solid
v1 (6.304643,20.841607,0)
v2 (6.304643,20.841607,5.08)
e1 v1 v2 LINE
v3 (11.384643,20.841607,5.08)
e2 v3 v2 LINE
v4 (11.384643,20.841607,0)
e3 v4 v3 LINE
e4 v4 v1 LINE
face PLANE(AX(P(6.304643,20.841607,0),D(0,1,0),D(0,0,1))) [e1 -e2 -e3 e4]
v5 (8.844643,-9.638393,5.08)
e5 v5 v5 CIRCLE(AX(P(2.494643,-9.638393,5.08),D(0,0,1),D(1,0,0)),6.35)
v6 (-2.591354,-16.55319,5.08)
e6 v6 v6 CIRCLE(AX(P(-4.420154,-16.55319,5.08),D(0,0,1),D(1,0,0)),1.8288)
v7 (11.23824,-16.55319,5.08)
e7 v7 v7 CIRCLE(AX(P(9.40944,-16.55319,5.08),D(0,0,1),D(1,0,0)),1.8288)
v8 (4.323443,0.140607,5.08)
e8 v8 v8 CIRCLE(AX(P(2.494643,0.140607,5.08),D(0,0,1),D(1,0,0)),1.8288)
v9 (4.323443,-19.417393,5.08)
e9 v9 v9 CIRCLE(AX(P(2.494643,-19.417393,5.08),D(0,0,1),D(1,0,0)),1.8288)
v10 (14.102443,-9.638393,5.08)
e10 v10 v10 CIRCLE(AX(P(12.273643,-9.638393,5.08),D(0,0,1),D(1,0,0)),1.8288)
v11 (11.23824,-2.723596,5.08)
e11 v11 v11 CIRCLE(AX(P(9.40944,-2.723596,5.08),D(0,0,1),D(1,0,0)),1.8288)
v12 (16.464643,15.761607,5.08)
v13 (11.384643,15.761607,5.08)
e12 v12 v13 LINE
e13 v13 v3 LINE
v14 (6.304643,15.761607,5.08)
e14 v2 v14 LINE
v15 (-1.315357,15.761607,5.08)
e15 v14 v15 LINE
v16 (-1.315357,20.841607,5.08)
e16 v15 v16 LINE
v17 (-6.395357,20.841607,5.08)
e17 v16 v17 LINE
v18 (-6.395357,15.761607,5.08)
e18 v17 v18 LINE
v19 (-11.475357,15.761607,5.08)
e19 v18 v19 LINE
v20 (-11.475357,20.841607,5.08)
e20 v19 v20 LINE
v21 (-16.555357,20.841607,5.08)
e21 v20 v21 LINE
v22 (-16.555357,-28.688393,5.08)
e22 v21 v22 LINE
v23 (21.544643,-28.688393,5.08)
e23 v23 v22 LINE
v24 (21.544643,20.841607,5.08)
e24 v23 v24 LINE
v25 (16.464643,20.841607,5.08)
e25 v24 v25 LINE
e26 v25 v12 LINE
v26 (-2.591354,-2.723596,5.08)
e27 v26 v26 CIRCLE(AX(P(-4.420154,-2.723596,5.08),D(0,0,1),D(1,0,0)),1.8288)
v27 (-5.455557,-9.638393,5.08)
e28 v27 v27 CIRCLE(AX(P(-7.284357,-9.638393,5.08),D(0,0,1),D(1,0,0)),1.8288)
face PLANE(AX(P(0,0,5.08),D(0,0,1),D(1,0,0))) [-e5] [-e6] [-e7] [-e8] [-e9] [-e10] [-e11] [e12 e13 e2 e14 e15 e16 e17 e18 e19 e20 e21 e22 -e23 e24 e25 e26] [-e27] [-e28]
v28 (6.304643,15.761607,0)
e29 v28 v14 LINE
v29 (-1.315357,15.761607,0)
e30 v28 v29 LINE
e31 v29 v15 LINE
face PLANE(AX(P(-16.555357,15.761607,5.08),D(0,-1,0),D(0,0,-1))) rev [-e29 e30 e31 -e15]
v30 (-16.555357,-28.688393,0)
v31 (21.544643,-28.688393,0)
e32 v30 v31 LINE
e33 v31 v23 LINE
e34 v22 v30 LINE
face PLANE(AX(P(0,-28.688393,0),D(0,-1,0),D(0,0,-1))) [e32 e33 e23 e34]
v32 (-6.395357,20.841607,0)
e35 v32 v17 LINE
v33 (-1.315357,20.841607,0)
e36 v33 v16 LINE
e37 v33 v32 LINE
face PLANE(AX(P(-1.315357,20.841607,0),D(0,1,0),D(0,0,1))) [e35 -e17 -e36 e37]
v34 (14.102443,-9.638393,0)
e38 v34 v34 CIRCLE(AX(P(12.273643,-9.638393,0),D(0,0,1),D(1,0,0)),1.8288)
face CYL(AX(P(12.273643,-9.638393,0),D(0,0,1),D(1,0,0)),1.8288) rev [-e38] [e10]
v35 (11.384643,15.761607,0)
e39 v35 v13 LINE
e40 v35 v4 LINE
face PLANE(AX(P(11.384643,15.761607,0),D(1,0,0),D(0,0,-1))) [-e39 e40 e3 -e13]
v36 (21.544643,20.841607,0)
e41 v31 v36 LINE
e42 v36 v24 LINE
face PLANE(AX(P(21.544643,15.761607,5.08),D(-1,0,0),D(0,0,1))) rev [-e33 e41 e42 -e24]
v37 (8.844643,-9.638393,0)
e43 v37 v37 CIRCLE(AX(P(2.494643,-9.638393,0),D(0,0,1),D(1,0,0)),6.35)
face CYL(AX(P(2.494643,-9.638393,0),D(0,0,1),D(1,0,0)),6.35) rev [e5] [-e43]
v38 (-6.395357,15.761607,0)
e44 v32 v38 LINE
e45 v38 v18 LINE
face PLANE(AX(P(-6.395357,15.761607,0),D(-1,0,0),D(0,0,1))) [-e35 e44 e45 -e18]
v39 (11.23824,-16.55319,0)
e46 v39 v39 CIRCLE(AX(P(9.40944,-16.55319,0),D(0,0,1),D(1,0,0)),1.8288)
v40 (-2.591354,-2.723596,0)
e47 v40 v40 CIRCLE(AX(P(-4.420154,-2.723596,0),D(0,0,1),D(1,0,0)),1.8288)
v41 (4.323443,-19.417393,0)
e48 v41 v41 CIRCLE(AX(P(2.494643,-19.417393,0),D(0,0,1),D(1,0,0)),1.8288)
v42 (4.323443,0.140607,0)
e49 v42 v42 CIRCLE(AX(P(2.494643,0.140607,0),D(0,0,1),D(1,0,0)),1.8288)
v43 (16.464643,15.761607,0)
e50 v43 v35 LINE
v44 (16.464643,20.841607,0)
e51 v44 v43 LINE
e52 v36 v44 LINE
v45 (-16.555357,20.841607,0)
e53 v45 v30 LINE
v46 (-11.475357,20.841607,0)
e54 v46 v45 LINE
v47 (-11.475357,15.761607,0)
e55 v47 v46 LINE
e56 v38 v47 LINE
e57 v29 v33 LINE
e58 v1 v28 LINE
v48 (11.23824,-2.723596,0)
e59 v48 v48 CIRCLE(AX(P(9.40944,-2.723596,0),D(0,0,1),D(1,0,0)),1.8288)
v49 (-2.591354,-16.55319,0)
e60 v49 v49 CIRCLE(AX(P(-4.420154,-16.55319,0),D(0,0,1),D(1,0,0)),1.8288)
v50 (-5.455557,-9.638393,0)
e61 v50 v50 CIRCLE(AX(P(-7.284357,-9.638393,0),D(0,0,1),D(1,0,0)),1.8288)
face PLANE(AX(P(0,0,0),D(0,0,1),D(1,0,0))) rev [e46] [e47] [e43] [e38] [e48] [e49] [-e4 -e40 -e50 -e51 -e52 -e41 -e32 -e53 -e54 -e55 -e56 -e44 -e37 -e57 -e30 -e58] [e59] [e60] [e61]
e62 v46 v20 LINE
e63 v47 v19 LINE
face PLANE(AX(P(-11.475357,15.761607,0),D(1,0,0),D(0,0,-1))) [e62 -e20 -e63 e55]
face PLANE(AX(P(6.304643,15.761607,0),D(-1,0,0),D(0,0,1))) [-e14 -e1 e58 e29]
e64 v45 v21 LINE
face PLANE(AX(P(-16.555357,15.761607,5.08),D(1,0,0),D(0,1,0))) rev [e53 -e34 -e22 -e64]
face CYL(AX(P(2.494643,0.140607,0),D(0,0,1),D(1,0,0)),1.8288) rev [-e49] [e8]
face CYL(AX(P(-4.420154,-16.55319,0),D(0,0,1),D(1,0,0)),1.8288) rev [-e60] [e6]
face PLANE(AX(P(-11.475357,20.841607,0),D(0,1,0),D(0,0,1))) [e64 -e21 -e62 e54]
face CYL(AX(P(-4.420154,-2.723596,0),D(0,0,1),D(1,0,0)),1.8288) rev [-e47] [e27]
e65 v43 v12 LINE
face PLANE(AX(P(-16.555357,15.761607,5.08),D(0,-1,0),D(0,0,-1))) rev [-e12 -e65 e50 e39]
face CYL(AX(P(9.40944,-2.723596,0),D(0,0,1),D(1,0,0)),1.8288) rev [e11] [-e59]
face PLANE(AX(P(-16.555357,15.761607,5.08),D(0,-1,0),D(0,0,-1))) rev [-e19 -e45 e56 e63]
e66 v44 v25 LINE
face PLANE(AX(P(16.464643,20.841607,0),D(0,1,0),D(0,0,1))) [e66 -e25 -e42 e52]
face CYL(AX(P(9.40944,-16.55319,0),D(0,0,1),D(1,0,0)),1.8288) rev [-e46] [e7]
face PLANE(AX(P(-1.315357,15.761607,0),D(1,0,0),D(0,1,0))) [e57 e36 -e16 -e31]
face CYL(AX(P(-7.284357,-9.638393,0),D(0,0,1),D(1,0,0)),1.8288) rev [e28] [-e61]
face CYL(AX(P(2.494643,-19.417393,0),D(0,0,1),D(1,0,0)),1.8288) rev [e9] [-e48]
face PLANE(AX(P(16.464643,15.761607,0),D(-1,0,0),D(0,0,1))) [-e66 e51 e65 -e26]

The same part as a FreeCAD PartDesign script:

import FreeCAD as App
import Part
import Sketcher

V = App.Vector
Q = App.Units.Quantity

doc = App.newDocument("Part")
params = doc.addObject("Spreadsheet::Sheet", "Params")
for row, (alias, value) in enumerate([
    ("sketch1_height", "2 in"),
    ("sketch1_width", "1.5 in"),
    ("pad1_length", "0.2 in"),
    ("sketch2_diameter", "0.5 in"),
    ("sketch2_diameter2", "0.144 in"),
    ("pocket1_length", "0.2 in"),
    ("sketch3_width", "0.2 in"),
    ("pad2_length", "0.2 in"),
    ("sketch4_width", "1.5 in"),
    ("sketch4_height", "0.2 in"),
    ("pocket2_length", "0.45 in"),
], start=1):
    params.set(f"A{row}", alias)
    params.set(f"B{row}", "=" + value)
    params.setAlias(f"B{row}", alias)

body = doc.addObject("PartDesign::Body", "Body")

sketch1 = body.newObject("Sketcher::SketchObject", "Sketch")
sketch1.AttachmentSupport = (doc.getObject("XY_Plane"), [""])
sketch1.MapMode = "FlatFace"
sketch1.addGeometry([
    Part.LineSegment(V(-17, 16, 0), V(-17, -35, 0)),
    Part.LineSegment(V(-17, -35, 0), V(22, -35, 0)),
    Part.LineSegment(V(22, -35, 0), V(22, 16, 0)),
    Part.LineSegment(V(22, 16, 0), V(-17, 16, 0)),
], False)
sketch1.addConstraint([
    Sketcher.Constraint("Coincident", 0, 2, 1, 1),
    Sketcher.Constraint("Coincident", 1, 2, 2, 1),
    Sketcher.Constraint("Coincident", 2, 2, 3, 1),
    Sketcher.Constraint("Coincident", 3, 2, 0, 1),
    Sketcher.Constraint("Vertical", 0),
    Sketcher.Constraint("Horizontal", 1),
    Sketcher.Constraint("Vertical", 2),
    Sketcher.Constraint("Horizontal", 3),
    Sketcher.Constraint("DistanceY", 0, 2, 0, 1, Q("2 in")),
    Sketcher.Constraint("DistanceX", 1, 1, 1, 2, Q("1.5 in")),
    Sketcher.Constraint("DistanceX", 0, 2, -1, 1, Q("16.555357 mm")),
    Sketcher.Constraint("DistanceY", 0, 2, -1, 1, Q("35.038393 mm")),
])
sketch1.setExpression("Constraints[8]", "Params.sketch1_height")
sketch1.setExpression("Constraints[9]", "Params.sketch1_width")
pad1 = body.newObject("PartDesign::Pad", "Pad")
pad1.Profile = sketch1
pad1.setExpression("Length", "Params.pad1_length")

sketch2 = body.newObject("Sketcher::SketchObject", "Sketch001")
sketch2.AttachmentSupport = (doc.getObject("XY_Plane"), [""])
sketch2.MapMode = "FlatFace"
sketch2.AttachmentOffset = App.Placement(V(0, 0, 0.2 * 25.4), App.Rotation())
sketch2.addGeometry([
    Part.Circle(V(2.5, -9.6, 0), V(0, 0, 1), 6.3),
    Part.Circle(V(12.3, -9.6, 0), V(0, 0, 1), 1.8),
    Part.Circle(V(9.4, -16.6, 0), V(0, 0, 1), 1.8),
    Part.Circle(V(2.5, -19.4, 0), V(0, 0, 1), 1.8),
    Part.Circle(V(-4.4, -16.6, 0), V(0, 0, 1), 1.8),
    Part.Circle(V(-7.3, -9.6, 0), V(0, 0, 1), 1.8),
    Part.Circle(V(-4.4, -2.7, 0), V(0, 0, 1), 1.8),
    Part.Circle(V(2.5, 0.1, 0), V(0, 0, 1), 1.8),
    Part.Circle(V(9.4, -2.7, 0), V(0, 0, 1), 1.8),
], False)
sketch2.addConstraint([
    Sketcher.Constraint("Equal", 1, 2),
    Sketcher.Constraint("Equal", 2, 3),
    Sketcher.Constraint("Equal", 3, 4),
    Sketcher.Constraint("Equal", 4, 5),
    Sketcher.Constraint("Equal", 5, 6),
    Sketcher.Constraint("Equal", 6, 7),
    Sketcher.Constraint("Equal", 7, 8),
    Sketcher.Constraint("Horizontal", 0, 3, 1, 3),
    Sketcher.Constraint("Horizontal", 2, 3, 4, 3),
    Sketcher.Constraint("Horizontal", 1, 3, 5, 3),
    Sketcher.Constraint("Horizontal", 6, 3, 8, 3),
    Sketcher.Constraint("Vertical", 0, 3, 3, 3),
    Sketcher.Constraint("Vertical", 4, 3, 6, 3),
    Sketcher.Constraint("Vertical", 3, 3, 7, 3),
    Sketcher.Constraint("Vertical", 2, 3, 8, 3),
    Sketcher.Constraint("Diameter", 0, Q("0.5 in")),
    Sketcher.Constraint("Diameter", 1, Q("0.144 in")),
    Sketcher.Constraint("DistanceX", 5, 3, 1, 3, Q("0.77 in")),
    Sketcher.Constraint("DistanceX", 0, 3, 1, 3, Q("0.385 in")),
    Sketcher.Constraint("DistanceY", 3, 3, 0, 3, Q("0.385 in")),
    Sketcher.Constraint("DistanceY", 0, 3, 7, 3, Q("0.385 in")),
    Sketcher.Constraint("DistanceX", -1, 1, 2, 3, Q("9.40944 mm")),
    Sketcher.Constraint("DistanceY", 2, 3, -1, 1, Q("16.55319 mm")),
    Sketcher.Constraint("DistanceX", -1, 1, 0, 3, Q("2.494643 mm")),
    Sketcher.Constraint("DistanceY", 0, 3, -1, 1, Q("9.638393 mm")),
    Sketcher.Constraint("DistanceX", 4, 3, -1, 1, Q("4.420154 mm")),
    Sketcher.Constraint("DistanceY", 6, 3, -1, 1, Q("2.723596 mm")),
])
sketch2.setExpression("Constraints[15]", "Params.sketch2_diameter")
sketch2.setExpression("Constraints[16]", "Params.sketch2_diameter2")
pocket1 = body.newObject("PartDesign::Pocket", "Pocket")
pocket1.Profile = sketch2
pocket1.setExpression("Length", "Params.pocket1_length")

sketch3 = body.newObject("Sketcher::SketchObject", "Sketch002")
sketch3.AttachmentSupport = (doc.getObject("XY_Plane"), [""])
sketch3.MapMode = "FlatFace"
sketch3.AttachmentOffset = App.Placement(V(0, 0, 0.2 * 25.4), App.Rotation())
sketch3.addGeometry([
    Part.LineSegment(V(-17, 21, 0), V(-17, 16, 0)),
    Part.LineSegment(V(-17, 16, 0), V(-11, 16, 0)),
    Part.LineSegment(V(-11, 16, 0), V(-11, 21, 0)),
    Part.LineSegment(V(-11, 21, 0), V(-17, 21, 0)),
    Part.LineSegment(V(6, 21, 0), V(6, 16, 0)),
    Part.LineSegment(V(6, 16, 0), V(11, 16, 0)),
    Part.LineSegment(V(11, 16, 0), V(11, 21, 0)),
    Part.LineSegment(V(11, 21, 0), V(6, 21, 0)),
    Part.LineSegment(V(16, 21, 0), V(16, 16, 0)),
    Part.LineSegment(V(16, 16, 0), V(22, 16, 0)),
    Part.LineSegment(V(22, 16, 0), V(22, 21, 0)),
    Part.LineSegment(V(22, 21, 0), V(16, 21, 0)),
    Part.LineSegment(V(-6, 21, 0), V(-6, 16, 0)),
    Part.LineSegment(V(-6, 16, 0), V(-1, 16, 0)),
    Part.LineSegment(V(-1, 16, 0), V(-1, 21, 0)),
    Part.LineSegment(V(-1, 21, 0), V(-6, 21, 0)),
    Part.LineSegment(V(-6, -35, 0), V(-6, -40, 0)),
    Part.LineSegment(V(-6, -40, 0), V(-1, -40, 0)),
    Part.LineSegment(V(-1, -40, 0), V(-1, -35, 0)),
    Part.LineSegment(V(-1, -35, 0), V(-6, -35, 0)),
    Part.LineSegment(V(-17, -35, 0), V(-17, -40, 0)),
    Part.LineSegment(V(-17, -40, 0), V(-11, -40, 0)),
    Part.LineSegment(V(-11, -40, 0), V(-11, -35, 0)),
    Part.LineSegment(V(-11, -35, 0), V(-17, -35, 0)),
    Part.LineSegment(V(16, -35, 0), V(16, -40, 0)),
    Part.LineSegment(V(16, -40, 0), V(22, -40, 0)),
    Part.LineSegment(V(22, -40, 0), V(22, -35, 0)),
    Part.LineSegment(V(22, -35, 0), V(16, -35, 0)),
    Part.LineSegment(V(6, -35, 0), V(6, -40, 0)),
    Part.LineSegment(V(6, -40, 0), V(11, -40, 0)),
    Part.LineSegment(V(11, -40, 0), V(11, -35, 0)),
    Part.LineSegment(V(11, -35, 0), V(6, -35, 0)),
], False)
sketch3.addConstraint([
    Sketcher.Constraint("Coincident", 0, 2, 1, 1),
    Sketcher.Constraint("Coincident", 1, 2, 2, 1),
    Sketcher.Constraint("Coincident", 2, 2, 3, 1),
    Sketcher.Constraint("Coincident", 3, 2, 0, 1),
    Sketcher.Constraint("Coincident", 4, 2, 5, 1),
    Sketcher.Constraint("Coincident", 5, 2, 6, 1),
    Sketcher.Constraint("Coincident", 6, 2, 7, 1),
    Sketcher.Constraint("Coincident", 7, 2, 4, 1),
    Sketcher.Constraint("Coincident", 8, 2, 9, 1),
    Sketcher.Constraint("Coincident", 9, 2, 10, 1),
    Sketcher.Constraint("Coincident", 10, 2, 11, 1),
    Sketcher.Constraint("Coincident", 11, 2, 8, 1),
    Sketcher.Constraint("Coincident", 12, 2, 13, 1),
    Sketcher.Constraint("Coincident", 13, 2, 14, 1),
    Sketcher.Constraint("Coincident", 14, 2, 15, 1),
    Sketcher.Constraint("Coincident", 15, 2, 12, 1),
    Sketcher.Constraint("Coincident", 16, 2, 17, 1),
    Sketcher.Constraint("Coincident", 17, 2, 18, 1),
    Sketcher.Constraint("Coincident", 18, 2, 19, 1),
    Sketcher.Constraint("Coincident", 19, 2, 16, 1),
    Sketcher.Constraint("Coincident", 20, 2, 21, 1),
    Sketcher.Constraint("Coincident", 21, 2, 22, 1),
    Sketcher.Constraint("Coincident", 22, 2, 23, 1),
    Sketcher.Constraint("Coincident", 23, 2, 20, 1),
    Sketcher.Constraint("Coincident", 24, 2, 25, 1),
    Sketcher.Constraint("Coincident", 25, 2, 26, 1),
    Sketcher.Constraint("Coincident", 26, 2, 27, 1),
    Sketcher.Constraint("Coincident", 27, 2, 24, 1),
    Sketcher.Constraint("Coincident", 28, 2, 29, 1),
    Sketcher.Constraint("Coincident", 29, 2, 30, 1),
    Sketcher.Constraint("Coincident", 30, 2, 31, 1),
    Sketcher.Constraint("Coincident", 31, 2, 28, 1),
    Sketcher.Constraint("Vertical", 0),
    Sketcher.Constraint("Horizontal", 1),
    Sketcher.Constraint("Vertical", 2),
    Sketcher.Constraint("Horizontal", 3),
    Sketcher.Constraint("Vertical", 4),
    Sketcher.Constraint("Horizontal", 5),
    Sketcher.Constraint("Vertical", 6),
    Sketcher.Constraint("Horizontal", 7),
    Sketcher.Constraint("Vertical", 8),
    Sketcher.Constraint("Horizontal", 9),
    Sketcher.Constraint("Vertical", 10),
    Sketcher.Constraint("Horizontal", 11),
    Sketcher.Constraint("Vertical", 12),
    Sketcher.Constraint("Horizontal", 13),
    Sketcher.Constraint("Vertical", 14),
    Sketcher.Constraint("Horizontal", 15),
    Sketcher.Constraint("Vertical", 16),
    Sketcher.Constraint("Horizontal", 17),
    Sketcher.Constraint("Vertical", 18),
    Sketcher.Constraint("Horizontal", 19),
    Sketcher.Constraint("Vertical", 20),
    Sketcher.Constraint("Horizontal", 21),
    Sketcher.Constraint("Vertical", 22),
    Sketcher.Constraint("Horizontal", 23),
    Sketcher.Constraint("Vertical", 24),
    Sketcher.Constraint("Horizontal", 25),
    Sketcher.Constraint("Vertical", 26),
    Sketcher.Constraint("Horizontal", 27),
    Sketcher.Constraint("Vertical", 28),
    Sketcher.Constraint("Horizontal", 29),
    Sketcher.Constraint("Vertical", 30),
    Sketcher.Constraint("Horizontal", 31),
    Sketcher.Constraint("Horizontal", 1, 2, 4, 2),
    Sketcher.Constraint("Horizontal", 3, 2, 6, 2),
    Sketcher.Constraint("Horizontal", 5, 2, 8, 2),
    Sketcher.Constraint("Horizontal", 7, 2, 10, 2),
    Sketcher.Constraint("Horizontal", 9, 2, 12, 2),
    Sketcher.Constraint("Horizontal", 11, 2, 14, 2),
    Sketcher.Constraint("Horizontal", 17, 2, 20, 2),
    Sketcher.Constraint("Horizontal", 19, 2, 22, 2),
    Sketcher.Constraint("Horizontal", 21, 2, 24, 2),
    Sketcher.Constraint("Horizontal", 23, 2, 26, 2),
    Sketcher.Constraint("Horizontal", 25, 2, 28, 2),
    Sketcher.Constraint("Horizontal", 27, 2, 30, 2),
    Sketcher.Constraint("Vertical", 15, 2, 16, 2),
    Sketcher.Constraint("Vertical", 14, 2, 17, 2),
    Sketcher.Constraint("Vertical", 3, 2, 20, 2),
    Sketcher.Constraint("Vertical", 2, 2, 21, 2),
    Sketcher.Constraint("Vertical", 11, 2, 24, 2),
    Sketcher.Constraint("Vertical", 10, 2, 25, 2),
    Sketcher.Constraint("Vertical", 7, 2, 28, 2),
    Sketcher.Constraint("Vertical", 6, 2, 29, 2),
    Sketcher.Constraint("Equal", 3, 5),
    Sketcher.Constraint("Equal", 7, 9),
    Sketcher.Constraint("Equal", 11, 13),
    Sketcher.Constraint("Equal", 31, 0),
    Sketcher.Constraint("Equal", 14, 16),
    Sketcher.Constraint("DistanceX", 1, 1, 1, 2, Q("0.2 in")),
    Sketcher.Constraint("DistanceY", 18, 2, 13, 2, Q("2 in")),
    Sketcher.Constraint("DistanceX", 1, 2, 4, 2, Q("0.7 in")),
    Sketcher.Constraint("DistanceX", 5, 2, 8, 2, Q("0.2 in")),
    Sketcher.Constraint("DistanceX", 1, 2, 12, 2, Q("0.2 in")),
    Sketcher.Constraint("DistanceX", 0, 2, -1, 1, Q("16.555357 mm")),
    Sketcher.Constraint("DistanceY", -1, 1, 0, 2, Q("15.761607 mm")),
])
sketch3.setExpression("Constraints[89]", "Params.sketch3_width")
pad2 = body.newObject("PartDesign::Pad", "Pad001")
pad2.Profile = sketch3
pad2.setExpression("Length", "Params.pad2_length")
pad2.Reversed = True

sketch4 = body.newObject("Sketcher::SketchObject", "Sketch003")
sketch4.AttachmentSupport = (doc.getObject("XZ_Plane"), [""])
sketch4.MapMode = "FlatFace"
sketch4.AttachmentOffset = App.Placement(V(0, 0, 40.118393), App.Rotation())
sketch4.addGeometry([
    Part.LineSegment(V(-17, 5, 0), V(-17, 0, 0)),
    Part.LineSegment(V(-17, 0, 0), V(22, 0, 0)),
    Part.LineSegment(V(22, 0, 0), V(22, 5, 0)),
    Part.LineSegment(V(22, 5, 0), V(-17, 5, 0)),
], False)
sketch4.addConstraint([
    Sketcher.Constraint("Coincident", 0, 2, 1, 1),
    Sketcher.Constraint("Coincident", 1, 2, 2, 1),
    Sketcher.Constraint("Coincident", 2, 2, 3, 1),
    Sketcher.Constraint("Coincident", 3, 2, 0, 1),
    Sketcher.Constraint("Vertical", 0),
    Sketcher.Constraint("Horizontal", 1),
    Sketcher.Constraint("Vertical", 2),
    Sketcher.Constraint("Horizontal", 3),
    Sketcher.Constraint("PointOnObject", 0, 2, -1),
    Sketcher.Constraint("DistanceX", 1, 1, 1, 2, Q("1.5 in")),
    Sketcher.Constraint("DistanceY", 0, 2, 0, 1, Q("0.2 in")),
    Sketcher.Constraint("DistanceX", 0, 2, -1, 1, Q("16.555357 mm")),
])
sketch4.setExpression("Constraints[9]", "Params.sketch4_width")
sketch4.setExpression("Constraints[10]", "Params.sketch4_height")
pocket2 = body.newObject("PartDesign::Pocket", "Pocket001")
pocket2.Profile = sketch4
pocket2.setExpression("Length", "Params.pocket2_length")

doc.recompute()
